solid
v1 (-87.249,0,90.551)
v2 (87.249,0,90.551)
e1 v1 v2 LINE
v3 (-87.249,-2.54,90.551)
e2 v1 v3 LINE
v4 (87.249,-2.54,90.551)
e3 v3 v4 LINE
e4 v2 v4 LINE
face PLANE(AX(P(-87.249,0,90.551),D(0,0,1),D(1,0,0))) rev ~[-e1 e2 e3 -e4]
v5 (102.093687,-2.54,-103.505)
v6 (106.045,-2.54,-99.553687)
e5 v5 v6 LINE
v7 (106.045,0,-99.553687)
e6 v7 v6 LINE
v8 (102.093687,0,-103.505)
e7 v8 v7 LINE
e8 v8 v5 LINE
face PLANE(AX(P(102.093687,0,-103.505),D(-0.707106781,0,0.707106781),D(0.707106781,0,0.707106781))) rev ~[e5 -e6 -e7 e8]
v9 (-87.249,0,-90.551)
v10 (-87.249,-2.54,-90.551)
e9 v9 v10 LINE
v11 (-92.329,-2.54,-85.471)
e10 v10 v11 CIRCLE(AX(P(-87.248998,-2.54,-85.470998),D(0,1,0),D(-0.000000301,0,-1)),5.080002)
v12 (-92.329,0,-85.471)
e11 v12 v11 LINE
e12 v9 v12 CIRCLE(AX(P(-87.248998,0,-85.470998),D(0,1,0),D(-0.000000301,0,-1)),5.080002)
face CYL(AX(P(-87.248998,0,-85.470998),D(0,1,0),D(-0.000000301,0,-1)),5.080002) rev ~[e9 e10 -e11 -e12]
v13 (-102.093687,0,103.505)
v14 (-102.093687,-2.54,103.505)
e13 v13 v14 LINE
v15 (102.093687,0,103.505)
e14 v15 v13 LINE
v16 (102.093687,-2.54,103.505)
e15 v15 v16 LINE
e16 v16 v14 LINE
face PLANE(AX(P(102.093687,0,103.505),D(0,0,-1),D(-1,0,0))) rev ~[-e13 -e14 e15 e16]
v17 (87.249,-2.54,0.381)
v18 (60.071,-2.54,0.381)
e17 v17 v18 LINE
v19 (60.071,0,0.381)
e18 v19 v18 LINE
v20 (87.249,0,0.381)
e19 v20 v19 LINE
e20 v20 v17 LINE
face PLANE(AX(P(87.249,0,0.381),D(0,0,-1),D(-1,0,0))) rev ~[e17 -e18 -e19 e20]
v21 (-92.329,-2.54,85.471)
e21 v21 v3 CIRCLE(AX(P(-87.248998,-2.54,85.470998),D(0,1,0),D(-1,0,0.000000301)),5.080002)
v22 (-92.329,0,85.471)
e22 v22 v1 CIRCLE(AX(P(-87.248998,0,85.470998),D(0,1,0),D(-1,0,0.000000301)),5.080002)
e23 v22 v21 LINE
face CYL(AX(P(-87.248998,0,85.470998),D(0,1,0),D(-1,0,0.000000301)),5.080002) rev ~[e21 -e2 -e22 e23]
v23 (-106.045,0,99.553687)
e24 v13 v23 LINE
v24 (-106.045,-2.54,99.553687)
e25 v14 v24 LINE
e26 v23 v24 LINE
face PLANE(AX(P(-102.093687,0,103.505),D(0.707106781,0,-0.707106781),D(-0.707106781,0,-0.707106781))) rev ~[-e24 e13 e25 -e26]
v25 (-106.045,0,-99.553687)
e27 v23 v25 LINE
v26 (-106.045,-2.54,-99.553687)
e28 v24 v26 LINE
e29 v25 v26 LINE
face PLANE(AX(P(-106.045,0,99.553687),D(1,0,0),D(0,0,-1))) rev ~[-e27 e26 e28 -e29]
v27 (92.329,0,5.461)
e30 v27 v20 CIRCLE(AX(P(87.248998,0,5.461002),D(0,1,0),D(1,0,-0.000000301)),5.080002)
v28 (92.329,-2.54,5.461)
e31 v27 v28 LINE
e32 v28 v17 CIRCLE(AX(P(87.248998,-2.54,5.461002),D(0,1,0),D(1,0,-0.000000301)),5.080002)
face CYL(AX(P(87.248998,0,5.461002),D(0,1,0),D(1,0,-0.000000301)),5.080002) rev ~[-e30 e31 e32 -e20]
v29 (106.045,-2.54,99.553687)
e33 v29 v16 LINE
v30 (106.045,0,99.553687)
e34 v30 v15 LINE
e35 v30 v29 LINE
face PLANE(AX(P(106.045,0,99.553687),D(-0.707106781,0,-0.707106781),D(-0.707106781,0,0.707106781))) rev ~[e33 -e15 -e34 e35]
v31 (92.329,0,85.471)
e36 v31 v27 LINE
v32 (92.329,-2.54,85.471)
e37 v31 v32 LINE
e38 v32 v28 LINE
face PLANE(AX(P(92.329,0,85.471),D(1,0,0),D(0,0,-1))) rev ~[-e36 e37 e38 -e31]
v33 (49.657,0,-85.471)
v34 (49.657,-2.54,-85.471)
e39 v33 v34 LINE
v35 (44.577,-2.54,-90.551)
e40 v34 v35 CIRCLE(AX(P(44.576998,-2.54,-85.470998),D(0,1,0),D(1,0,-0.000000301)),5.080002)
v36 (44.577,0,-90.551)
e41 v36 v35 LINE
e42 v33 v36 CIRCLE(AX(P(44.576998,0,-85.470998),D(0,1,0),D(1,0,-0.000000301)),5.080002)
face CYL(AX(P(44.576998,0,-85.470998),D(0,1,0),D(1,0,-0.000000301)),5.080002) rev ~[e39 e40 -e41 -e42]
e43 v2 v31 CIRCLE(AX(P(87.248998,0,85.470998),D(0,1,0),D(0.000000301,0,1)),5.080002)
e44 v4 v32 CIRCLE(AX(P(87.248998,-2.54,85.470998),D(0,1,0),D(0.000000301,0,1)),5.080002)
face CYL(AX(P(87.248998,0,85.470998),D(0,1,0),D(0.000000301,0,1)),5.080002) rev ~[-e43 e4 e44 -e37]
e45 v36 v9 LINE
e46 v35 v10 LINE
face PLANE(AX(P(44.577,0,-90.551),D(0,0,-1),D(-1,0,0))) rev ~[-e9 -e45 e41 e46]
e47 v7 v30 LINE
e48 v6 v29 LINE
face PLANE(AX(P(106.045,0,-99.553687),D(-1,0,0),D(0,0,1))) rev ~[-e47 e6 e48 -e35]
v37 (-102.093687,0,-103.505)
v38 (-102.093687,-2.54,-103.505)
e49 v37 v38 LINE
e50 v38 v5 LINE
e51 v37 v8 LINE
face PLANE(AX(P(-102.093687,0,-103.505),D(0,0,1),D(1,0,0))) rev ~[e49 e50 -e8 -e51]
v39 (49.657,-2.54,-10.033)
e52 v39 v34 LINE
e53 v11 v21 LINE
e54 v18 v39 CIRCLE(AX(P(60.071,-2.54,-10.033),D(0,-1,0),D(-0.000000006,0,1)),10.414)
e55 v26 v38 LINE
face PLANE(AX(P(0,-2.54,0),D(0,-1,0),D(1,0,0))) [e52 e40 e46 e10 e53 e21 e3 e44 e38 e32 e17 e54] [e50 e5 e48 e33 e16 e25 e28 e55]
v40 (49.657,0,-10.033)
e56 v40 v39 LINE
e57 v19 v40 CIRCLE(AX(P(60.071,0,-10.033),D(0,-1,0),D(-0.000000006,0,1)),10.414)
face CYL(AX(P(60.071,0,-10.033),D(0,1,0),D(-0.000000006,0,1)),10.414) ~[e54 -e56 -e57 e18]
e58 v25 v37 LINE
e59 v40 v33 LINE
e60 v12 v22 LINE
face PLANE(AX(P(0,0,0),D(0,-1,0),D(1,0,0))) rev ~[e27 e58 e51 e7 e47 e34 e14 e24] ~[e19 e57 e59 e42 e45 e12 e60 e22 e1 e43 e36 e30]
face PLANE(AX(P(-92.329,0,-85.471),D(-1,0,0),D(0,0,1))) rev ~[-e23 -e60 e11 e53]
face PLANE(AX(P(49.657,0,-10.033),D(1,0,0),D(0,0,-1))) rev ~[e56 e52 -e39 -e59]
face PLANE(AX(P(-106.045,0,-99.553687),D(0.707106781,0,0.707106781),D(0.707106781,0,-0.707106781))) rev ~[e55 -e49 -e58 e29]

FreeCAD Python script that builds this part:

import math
import FreeCAD as App
import Part
import Sketcher
from FreeCAD import Vector
Q = App.Units.Quantity

doc = App.newDocument("Part")
body = doc.addObject("PartDesign::Body", "Body")

# Sketch on XZ plane
sketch1 = body.newObject("Sketcher::SketchObject", "Sketch")
sketch1.AttachmentSupport = (doc.getObject("XZ_Plane"), [""])
sketch1.MapMode = "FlatFace"
sketch1.addGeometry([
    Part.LineSegment(Vector(-106.045, -99.553687, 0), Vector(-102.093687, -103.505, 0)),  # 0
    Part.LineSegment(Vector(-102.093687, -103.505, 0), Vector(102.093687, -103.505, 0)),  # 1
    Part.LineSegment(Vector(102.093687, -103.505, 0), Vector(106.045, -99.553687, 0)),  # 2
    Part.LineSegment(Vector(106.045, -99.553687, 0), Vector(106.045, 99.553687, 0)),  # 3
    Part.LineSegment(Vector(106.045, 99.553687, 0), Vector(102.093687, 103.505, 0)),  # 4
    Part.LineSegment(Vector(102.093687, 103.505, 0), Vector(-102.093687, 103.505, 0)),  # 5
    Part.LineSegment(Vector(-102.093687, 103.505, 0), Vector(-106.045, 99.553687, 0)),  # 6
    Part.LineSegment(Vector(-106.045, 99.553687, 0), Vector(-106.045, -99.553687, 0)),  # 7
    Part.LineSegment(Vector(-92.329, -85.471, 0), Vector(-92.329, 85.471, 0)),  # 8
    Part.ArcOfCircle(Part.Circle(Vector(-87.248998, 85.470998, 0), Vector(0, 0, 1), 5.080002), math.radians(90.000017), math.radians(179.999983)),  # 9
    Part.LineSegment(Vector(-87.249, 90.551, 0), Vector(87.249, 90.551, 0)),  # 10
    Part.ArcOfCircle(Part.Circle(Vector(87.248998, 85.470998, 0), Vector(0, 0, 1), 5.080002), math.radians(0.000017), math.radians(89.999983)),  # 11
    Part.LineSegment(Vector(92.329, 85.471, 0), Vector(92.329, 5.461, 0)),  # 12
    Part.ArcOfCircle(Part.Circle(Vector(87.248998, 5.461002, 0), Vector(0, 0, 1), 5.080002), math.radians(-89.999983), math.radians(-0.000017)),  # 13
    Part.LineSegment(Vector(87.249, 0.381, 0), Vector(60.071, 0.381, 0)),  # 14
    Part.ArcOfCircle(Part.Circle(Vector(60.071, -10.033, 0), Vector(0, 0, 1), 10.414), math.radians(90), math.radians(180)),  # 15
    Part.LineSegment(Vector(49.657, -10.033, 0), Vector(49.657, -85.471, 0)),  # 16
    Part.ArcOfCircle(Part.Circle(Vector(44.576998, -85.470998, 0), Vector(0, 0, 1), 5.080002), math.radians(-89.999983), math.radians(-0.000017)),  # 17
    Part.LineSegment(Vector(44.577, -90.551, 0), Vector(-87.249, -90.551, 0)),  # 18
    Part.ArcOfCircle(Part.Circle(Vector(-87.248998, -85.470998, 0), Vector(0, 0, 1), 5.080002), math.radians(-179.999983), math.radians(-90.000017)),  # 19
], False)
sketch1.addConstraint([
    Sketcher.Constraint("Coincident", 0, 2, 1, 1),
    Sketcher.Constraint("Coincident", 1, 2, 2, 1),
    Sketcher.Constraint("Coincident", 2, 2, 3, 1),
    Sketcher.Constraint("Coincident", 3, 2, 4, 1),
    Sketcher.Constraint("Coincident", 4, 2, 5, 1),
    Sketcher.Constraint("Coincident", 5, 2, 6, 1),
    Sketcher.Constraint("Coincident", 6, 2, 7, 1),
    Sketcher.Constraint("Coincident", 7, 2, 0, 1),
    Sketcher.Constraint("Tangent", 8, 2, 9, 2),
    Sketcher.Constraint("Tangent", 9, 1, 10, 1),
    Sketcher.Constraint("Tangent", 10, 2, 11, 2),
    Sketcher.Constraint("Tangent", 11, 1, 12, 1),
    Sketcher.Constraint("Tangent", 12, 2, 13, 2),
    Sketcher.Constraint("Tangent", 13, 1, 14, 1),
    Sketcher.Constraint("Tangent", 14, 2, 15, 1),
    Sketcher.Constraint("Tangent", 15, 2, 16, 1),
    Sketcher.Constraint("Tangent", 16, 2, 17, 2),
    Sketcher.Constraint("Tangent", 17, 1, 18, 1),
    Sketcher.Constraint("Tangent", 18, 2, 19, 2),
    Sketcher.Constraint("Tangent", 19, 1, 8, 1),
    Sketcher.Constraint("Horizontal", 1),
    Sketcher.Constraint("Vertical", 3),
    Sketcher.Constraint("Horizontal", 5),
    Sketcher.Constraint("Vertical", 7),
    Sketcher.Constraint("Vertical", 8),
    Sketcher.Constraint("Horizontal", 10),
    Sketcher.Constraint("Vertical", 12),
    Sketcher.Constraint("Horizontal", 14),
    Sketcher.Constraint("Vertical", 16),
    Sketcher.Constraint("Horizontal", 18),
    Sketcher.Constraint("Equal", 9, 11),
    Sketcher.Constraint("Equal", 11, 13),
    Sketcher.Constraint("Equal", 13, 17),
    Sketcher.Constraint("Equal", 17, 19),
    Sketcher.Constraint("Symmetric", 11, 3, 19, 3, -1, 1),
    Sketcher.Constraint("Symmetric", 0, 2, 4, 2, -1, 1),
    Sketcher.Constraint("Symmetric", 2, 2, 6, 2, -1, 1),
    Sketcher.Constraint("Perpendicular", 0, 2),
    Sketcher.Constraint("Perpendicular", 2, 4),
    Sketcher.Constraint("Perpendicular", 4, 6),
    Sketcher.Constraint("Horizontal", 3, 2, 6, 2),
    Sketcher.Constraint("Vertical", 1, 2, 4, 2),
    Sketcher.Constraint("Radius", 9, Q("0.2000001 in")),
    Sketcher.Constraint("Radius", 15, Q("0.41 in")),
    Sketcher.Constraint("DistanceX", 10, 1, 10, 2, Q("6.87 in")),
    Sketcher.Constraint("DistanceX", 14, 2, 14, 1, Q("1.07 in")),
    Sketcher.Constraint("DistanceY", 8, 1, 8, 2, Q("6.73 in")),
    Sketcher.Constraint("DistanceY", 12, 2, 12, 1, Q("3.15 in")),
    Sketcher.Constraint("Distance", 0, Q("0.22 in")),
    Sketcher.Constraint("DistanceY", 0, 2, 19, 3, Q("0.7100001 in")),
    Sketcher.Constraint("DistanceX", 17, 3, 2, 2, Q("2.4200001 in")),
])
pad1 = body.newObject("PartDesign::Pad", "Pad")
pad1.Profile = sketch1
pad1.Length = Q("0.1 in")

doc.recompute()
